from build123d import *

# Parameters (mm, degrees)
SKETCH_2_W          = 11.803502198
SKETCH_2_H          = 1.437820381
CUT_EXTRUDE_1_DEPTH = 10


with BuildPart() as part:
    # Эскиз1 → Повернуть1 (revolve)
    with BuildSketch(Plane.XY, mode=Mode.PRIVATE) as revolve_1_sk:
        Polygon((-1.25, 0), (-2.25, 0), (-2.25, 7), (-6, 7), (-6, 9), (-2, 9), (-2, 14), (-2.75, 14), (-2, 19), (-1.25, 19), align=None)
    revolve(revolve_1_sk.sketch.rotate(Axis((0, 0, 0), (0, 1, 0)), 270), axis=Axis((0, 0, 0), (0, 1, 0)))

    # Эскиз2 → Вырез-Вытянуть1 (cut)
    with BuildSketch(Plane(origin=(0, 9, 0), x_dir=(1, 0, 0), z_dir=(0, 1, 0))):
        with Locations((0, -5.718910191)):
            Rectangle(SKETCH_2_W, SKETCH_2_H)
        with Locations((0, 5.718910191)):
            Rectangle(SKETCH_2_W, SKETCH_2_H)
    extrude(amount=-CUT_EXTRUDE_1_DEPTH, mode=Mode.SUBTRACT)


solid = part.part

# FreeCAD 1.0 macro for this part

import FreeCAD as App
import Part
import Sketcher

doc = App.newDocument("Part")
body = doc.addObject("PartDesign::Body", "Body")

sketch1 = doc.addObject("Sketcher::SketchObject", "Sketch")
body.addObject(sketch1)
sketch1.AttachmentSupport = (doc.XY_Plane, [""])
sketch1.MapMode = "FlatFace"
sketch1.addGeometry([
    Part.LineSegment(App.Vector(-2.25, 0, 0), App.Vector(-1.25, 0, 0)),
    Part.LineSegment(App.Vector(-1.25, 0, 0), App.Vector(-1.25, 19, 0)),
    Part.LineSegment(App.Vector(-1.25, 19, 0), App.Vector(-2, 19, 0)),
    Part.LineSegment(App.Vector(-2, 19, 0), App.Vector(-2.75, 14, 0)),
    Part.LineSegment(App.Vector(-2.75, 14, 0), App.Vector(-2, 14, 0)),
    Part.LineSegment(App.Vector(-2, 14, 0), App.Vector(-2, 9, 0)),
    Part.LineSegment(App.Vector(-2, 9, 0), App.Vector(-6, 9, 0)),
    Part.LineSegment(App.Vector(-6, 9, 0), App.Vector(-6, 7, 0)),
    Part.LineSegment(App.Vector(-6, 7, 0), App.Vector(-2.25, 7, 0)),
    Part.LineSegment(App.Vector(-2.25, 7, 0), App.Vector(-2.25, 0, 0)),
], False)
sketch1.addConstraint([
    Sketcher.Constraint("Coincident", 0, 2, 1, 1),
    Sketcher.Constraint("Coincident", 1, 2, 2, 1),
    Sketcher.Constraint("Coincident", 2, 2, 3, 1),
    Sketcher.Constraint("Coincident", 3, 2, 4, 1),
    Sketcher.Constraint("Coincident", 4, 2, 5, 1),
    Sketcher.Constraint("Coincident", 5, 2, 6, 1),
    Sketcher.Constraint("Coincident", 6, 2, 7, 1),
    Sketcher.Constraint("Coincident", 7, 2, 8, 1),
    Sketcher.Constraint("Coincident", 8, 2, 9, 1),
    Sketcher.Constraint("Coincident", 9, 2, 0, 1),
    Sketcher.Constraint("Horizontal", 0),
    Sketcher.Constraint("Vertical", 1),
    Sketcher.Constraint("Horizontal", 2),
    Sketcher.Constraint("Horizontal", 4),
    Sketcher.Constraint("Vertical", 5),
    Sketcher.Constraint("Horizontal", 6),
    Sketcher.Constraint("Vertical", 7),
    Sketcher.Constraint("Horizontal", 8),
    Sketcher.Constraint("Vertical", 9),
    Sketcher.Constraint("PointOnObject", 0, 2, -1),
    Sketcher.Constraint("Vertical", 2, 2, 4, 2),
    Sketcher.Constraint("Equal", 2, 4),
    Sketcher.Constraint("DistanceX", 0, 1, 0, 2, 1.0),
    Sketcher.Constraint("DistanceX", 6, 2, 6, 1, 4.0),
    Sketcher.Constraint("DistanceY", 1, 1, 1, 2, 19.0),
    Sketcher.Constraint("DistanceY", 5, 2, 5, 1, 5.0),
    Sketcher.Constraint("DistanceY", 7, 2, 7, 1, 2.0),
    Sketcher.Constraint("DistanceY", 9, 2, 9, 1, 7.0),
    Sketcher.Constraint("DistanceX", 2, 2, -1, 1, 2.0),
    Sketcher.Constraint("DistanceX", 2, 2, 2, 1, 0.75),
])
revolution = doc.addObject("PartDesign::Revolution", "Revolution")
body.addObject(revolution)
revolution.Profile = sketch1
revolution.ReferenceAxis = (sketch1, ["V_Axis"])
revolution.Angle = 360

sketch2 = doc.addObject("Sketcher::SketchObject", "Sketch001")
body.addObject(sketch2)
sketch2.AttachmentSupport = (doc.XZ_Plane, [""])
sketch2.MapMode = "FlatFace"
sketch2.AttachmentOffset = App.Placement(App.Vector(0, 0, -9), App.Rotation())
sketch2.addGeometry([
    Part.LineSegment(App.Vector(-5.901751, 5, 0), App.Vector(-5.901751, 6.43782, 0)),
    Part.LineSegment(App.Vector(-5.901751, 6.43782, 0), App.Vector(5.901751, 6.43782, 0)),
    Part.LineSegment(App.Vector(5.901751, 6.43782, 0), App.Vector(5.901751, 5, 0)),
    Part.LineSegment(App.Vector(5.901751, 5, 0), App.Vector(-5.901751, 5, 0)),
    Part.LineSegment(App.Vector(-5.901751, -6.43782, 0), App.Vector(-5.901751, -5, 0)),
    Part.LineSegment(App.Vector(-5.901751, -5, 0), App.Vector(5.901751, -5, 0)),
    Part.LineSegment(App.Vector(5.901751, -5, 0), App.Vector(5.901751, -6.43782, 0)),
    Part.LineSegment(App.Vector(5.901751, -6.43782, 0), App.Vector(-5.901751, -6.43782, 0)),
], False)
sketch2.addConstraint([
    Sketcher.Constraint("Coincident", 0, 2, 1, 1),
    Sketcher.Constraint("Coincident", 1, 2, 2, 1),
    Sketcher.Constraint("Coincident", 2, 2, 3, 1),
    Sketcher.Constraint("Coincident", 3, 2, 0, 1),
    Sketcher.Constraint("Coincident", 4, 2, 5, 1),
    Sketcher.Constraint("Coincident", 5, 2, 6, 1),
    Sketcher.Constraint("Coincident", 6, 2, 7, 1),
    Sketcher.Constraint("Coincident", 7, 2, 4, 1),
    Sketcher.Constraint("Vertical", 0),
    Sketcher.Constraint("Horizontal", 1),
    Sketcher.Constraint("Vertical", 2),
    Sketcher.Constraint("Horizontal", 3),
    Sketcher.Constraint("Vertical", 4),
    Sketcher.Constraint("Horizontal", 5),
    Sketcher.Constraint("Vertical", 6),
    Sketcher.Constraint("Horizontal", 7),
    Sketcher.Constraint("Symmetric", 2, 2, 4, 2, -1, 1),
    Sketcher.Constraint("Symmetric", 0, 2, 6, 2, -1, 1),
    Sketcher.Constraint("Vertical", 3, 2, 4, 2),
    Sketcher.Constraint("DistanceY", -1, 1, 2, 2, 5.0),
    Sketcher.Constraint("DistanceY", 0, 1, 0, 2, 1.43782),
    Sketcher.Constraint("DistanceX", 1, 1, 1, 2, 11.803502),
])
pocket1 = doc.addObject("PartDesign::Pocket", "Pocket")
body.addObject(pocket1)
pocket1.Profile = sketch2
pocket1.Length = 10
pocket1.Reversed = True

doc.recompute()
